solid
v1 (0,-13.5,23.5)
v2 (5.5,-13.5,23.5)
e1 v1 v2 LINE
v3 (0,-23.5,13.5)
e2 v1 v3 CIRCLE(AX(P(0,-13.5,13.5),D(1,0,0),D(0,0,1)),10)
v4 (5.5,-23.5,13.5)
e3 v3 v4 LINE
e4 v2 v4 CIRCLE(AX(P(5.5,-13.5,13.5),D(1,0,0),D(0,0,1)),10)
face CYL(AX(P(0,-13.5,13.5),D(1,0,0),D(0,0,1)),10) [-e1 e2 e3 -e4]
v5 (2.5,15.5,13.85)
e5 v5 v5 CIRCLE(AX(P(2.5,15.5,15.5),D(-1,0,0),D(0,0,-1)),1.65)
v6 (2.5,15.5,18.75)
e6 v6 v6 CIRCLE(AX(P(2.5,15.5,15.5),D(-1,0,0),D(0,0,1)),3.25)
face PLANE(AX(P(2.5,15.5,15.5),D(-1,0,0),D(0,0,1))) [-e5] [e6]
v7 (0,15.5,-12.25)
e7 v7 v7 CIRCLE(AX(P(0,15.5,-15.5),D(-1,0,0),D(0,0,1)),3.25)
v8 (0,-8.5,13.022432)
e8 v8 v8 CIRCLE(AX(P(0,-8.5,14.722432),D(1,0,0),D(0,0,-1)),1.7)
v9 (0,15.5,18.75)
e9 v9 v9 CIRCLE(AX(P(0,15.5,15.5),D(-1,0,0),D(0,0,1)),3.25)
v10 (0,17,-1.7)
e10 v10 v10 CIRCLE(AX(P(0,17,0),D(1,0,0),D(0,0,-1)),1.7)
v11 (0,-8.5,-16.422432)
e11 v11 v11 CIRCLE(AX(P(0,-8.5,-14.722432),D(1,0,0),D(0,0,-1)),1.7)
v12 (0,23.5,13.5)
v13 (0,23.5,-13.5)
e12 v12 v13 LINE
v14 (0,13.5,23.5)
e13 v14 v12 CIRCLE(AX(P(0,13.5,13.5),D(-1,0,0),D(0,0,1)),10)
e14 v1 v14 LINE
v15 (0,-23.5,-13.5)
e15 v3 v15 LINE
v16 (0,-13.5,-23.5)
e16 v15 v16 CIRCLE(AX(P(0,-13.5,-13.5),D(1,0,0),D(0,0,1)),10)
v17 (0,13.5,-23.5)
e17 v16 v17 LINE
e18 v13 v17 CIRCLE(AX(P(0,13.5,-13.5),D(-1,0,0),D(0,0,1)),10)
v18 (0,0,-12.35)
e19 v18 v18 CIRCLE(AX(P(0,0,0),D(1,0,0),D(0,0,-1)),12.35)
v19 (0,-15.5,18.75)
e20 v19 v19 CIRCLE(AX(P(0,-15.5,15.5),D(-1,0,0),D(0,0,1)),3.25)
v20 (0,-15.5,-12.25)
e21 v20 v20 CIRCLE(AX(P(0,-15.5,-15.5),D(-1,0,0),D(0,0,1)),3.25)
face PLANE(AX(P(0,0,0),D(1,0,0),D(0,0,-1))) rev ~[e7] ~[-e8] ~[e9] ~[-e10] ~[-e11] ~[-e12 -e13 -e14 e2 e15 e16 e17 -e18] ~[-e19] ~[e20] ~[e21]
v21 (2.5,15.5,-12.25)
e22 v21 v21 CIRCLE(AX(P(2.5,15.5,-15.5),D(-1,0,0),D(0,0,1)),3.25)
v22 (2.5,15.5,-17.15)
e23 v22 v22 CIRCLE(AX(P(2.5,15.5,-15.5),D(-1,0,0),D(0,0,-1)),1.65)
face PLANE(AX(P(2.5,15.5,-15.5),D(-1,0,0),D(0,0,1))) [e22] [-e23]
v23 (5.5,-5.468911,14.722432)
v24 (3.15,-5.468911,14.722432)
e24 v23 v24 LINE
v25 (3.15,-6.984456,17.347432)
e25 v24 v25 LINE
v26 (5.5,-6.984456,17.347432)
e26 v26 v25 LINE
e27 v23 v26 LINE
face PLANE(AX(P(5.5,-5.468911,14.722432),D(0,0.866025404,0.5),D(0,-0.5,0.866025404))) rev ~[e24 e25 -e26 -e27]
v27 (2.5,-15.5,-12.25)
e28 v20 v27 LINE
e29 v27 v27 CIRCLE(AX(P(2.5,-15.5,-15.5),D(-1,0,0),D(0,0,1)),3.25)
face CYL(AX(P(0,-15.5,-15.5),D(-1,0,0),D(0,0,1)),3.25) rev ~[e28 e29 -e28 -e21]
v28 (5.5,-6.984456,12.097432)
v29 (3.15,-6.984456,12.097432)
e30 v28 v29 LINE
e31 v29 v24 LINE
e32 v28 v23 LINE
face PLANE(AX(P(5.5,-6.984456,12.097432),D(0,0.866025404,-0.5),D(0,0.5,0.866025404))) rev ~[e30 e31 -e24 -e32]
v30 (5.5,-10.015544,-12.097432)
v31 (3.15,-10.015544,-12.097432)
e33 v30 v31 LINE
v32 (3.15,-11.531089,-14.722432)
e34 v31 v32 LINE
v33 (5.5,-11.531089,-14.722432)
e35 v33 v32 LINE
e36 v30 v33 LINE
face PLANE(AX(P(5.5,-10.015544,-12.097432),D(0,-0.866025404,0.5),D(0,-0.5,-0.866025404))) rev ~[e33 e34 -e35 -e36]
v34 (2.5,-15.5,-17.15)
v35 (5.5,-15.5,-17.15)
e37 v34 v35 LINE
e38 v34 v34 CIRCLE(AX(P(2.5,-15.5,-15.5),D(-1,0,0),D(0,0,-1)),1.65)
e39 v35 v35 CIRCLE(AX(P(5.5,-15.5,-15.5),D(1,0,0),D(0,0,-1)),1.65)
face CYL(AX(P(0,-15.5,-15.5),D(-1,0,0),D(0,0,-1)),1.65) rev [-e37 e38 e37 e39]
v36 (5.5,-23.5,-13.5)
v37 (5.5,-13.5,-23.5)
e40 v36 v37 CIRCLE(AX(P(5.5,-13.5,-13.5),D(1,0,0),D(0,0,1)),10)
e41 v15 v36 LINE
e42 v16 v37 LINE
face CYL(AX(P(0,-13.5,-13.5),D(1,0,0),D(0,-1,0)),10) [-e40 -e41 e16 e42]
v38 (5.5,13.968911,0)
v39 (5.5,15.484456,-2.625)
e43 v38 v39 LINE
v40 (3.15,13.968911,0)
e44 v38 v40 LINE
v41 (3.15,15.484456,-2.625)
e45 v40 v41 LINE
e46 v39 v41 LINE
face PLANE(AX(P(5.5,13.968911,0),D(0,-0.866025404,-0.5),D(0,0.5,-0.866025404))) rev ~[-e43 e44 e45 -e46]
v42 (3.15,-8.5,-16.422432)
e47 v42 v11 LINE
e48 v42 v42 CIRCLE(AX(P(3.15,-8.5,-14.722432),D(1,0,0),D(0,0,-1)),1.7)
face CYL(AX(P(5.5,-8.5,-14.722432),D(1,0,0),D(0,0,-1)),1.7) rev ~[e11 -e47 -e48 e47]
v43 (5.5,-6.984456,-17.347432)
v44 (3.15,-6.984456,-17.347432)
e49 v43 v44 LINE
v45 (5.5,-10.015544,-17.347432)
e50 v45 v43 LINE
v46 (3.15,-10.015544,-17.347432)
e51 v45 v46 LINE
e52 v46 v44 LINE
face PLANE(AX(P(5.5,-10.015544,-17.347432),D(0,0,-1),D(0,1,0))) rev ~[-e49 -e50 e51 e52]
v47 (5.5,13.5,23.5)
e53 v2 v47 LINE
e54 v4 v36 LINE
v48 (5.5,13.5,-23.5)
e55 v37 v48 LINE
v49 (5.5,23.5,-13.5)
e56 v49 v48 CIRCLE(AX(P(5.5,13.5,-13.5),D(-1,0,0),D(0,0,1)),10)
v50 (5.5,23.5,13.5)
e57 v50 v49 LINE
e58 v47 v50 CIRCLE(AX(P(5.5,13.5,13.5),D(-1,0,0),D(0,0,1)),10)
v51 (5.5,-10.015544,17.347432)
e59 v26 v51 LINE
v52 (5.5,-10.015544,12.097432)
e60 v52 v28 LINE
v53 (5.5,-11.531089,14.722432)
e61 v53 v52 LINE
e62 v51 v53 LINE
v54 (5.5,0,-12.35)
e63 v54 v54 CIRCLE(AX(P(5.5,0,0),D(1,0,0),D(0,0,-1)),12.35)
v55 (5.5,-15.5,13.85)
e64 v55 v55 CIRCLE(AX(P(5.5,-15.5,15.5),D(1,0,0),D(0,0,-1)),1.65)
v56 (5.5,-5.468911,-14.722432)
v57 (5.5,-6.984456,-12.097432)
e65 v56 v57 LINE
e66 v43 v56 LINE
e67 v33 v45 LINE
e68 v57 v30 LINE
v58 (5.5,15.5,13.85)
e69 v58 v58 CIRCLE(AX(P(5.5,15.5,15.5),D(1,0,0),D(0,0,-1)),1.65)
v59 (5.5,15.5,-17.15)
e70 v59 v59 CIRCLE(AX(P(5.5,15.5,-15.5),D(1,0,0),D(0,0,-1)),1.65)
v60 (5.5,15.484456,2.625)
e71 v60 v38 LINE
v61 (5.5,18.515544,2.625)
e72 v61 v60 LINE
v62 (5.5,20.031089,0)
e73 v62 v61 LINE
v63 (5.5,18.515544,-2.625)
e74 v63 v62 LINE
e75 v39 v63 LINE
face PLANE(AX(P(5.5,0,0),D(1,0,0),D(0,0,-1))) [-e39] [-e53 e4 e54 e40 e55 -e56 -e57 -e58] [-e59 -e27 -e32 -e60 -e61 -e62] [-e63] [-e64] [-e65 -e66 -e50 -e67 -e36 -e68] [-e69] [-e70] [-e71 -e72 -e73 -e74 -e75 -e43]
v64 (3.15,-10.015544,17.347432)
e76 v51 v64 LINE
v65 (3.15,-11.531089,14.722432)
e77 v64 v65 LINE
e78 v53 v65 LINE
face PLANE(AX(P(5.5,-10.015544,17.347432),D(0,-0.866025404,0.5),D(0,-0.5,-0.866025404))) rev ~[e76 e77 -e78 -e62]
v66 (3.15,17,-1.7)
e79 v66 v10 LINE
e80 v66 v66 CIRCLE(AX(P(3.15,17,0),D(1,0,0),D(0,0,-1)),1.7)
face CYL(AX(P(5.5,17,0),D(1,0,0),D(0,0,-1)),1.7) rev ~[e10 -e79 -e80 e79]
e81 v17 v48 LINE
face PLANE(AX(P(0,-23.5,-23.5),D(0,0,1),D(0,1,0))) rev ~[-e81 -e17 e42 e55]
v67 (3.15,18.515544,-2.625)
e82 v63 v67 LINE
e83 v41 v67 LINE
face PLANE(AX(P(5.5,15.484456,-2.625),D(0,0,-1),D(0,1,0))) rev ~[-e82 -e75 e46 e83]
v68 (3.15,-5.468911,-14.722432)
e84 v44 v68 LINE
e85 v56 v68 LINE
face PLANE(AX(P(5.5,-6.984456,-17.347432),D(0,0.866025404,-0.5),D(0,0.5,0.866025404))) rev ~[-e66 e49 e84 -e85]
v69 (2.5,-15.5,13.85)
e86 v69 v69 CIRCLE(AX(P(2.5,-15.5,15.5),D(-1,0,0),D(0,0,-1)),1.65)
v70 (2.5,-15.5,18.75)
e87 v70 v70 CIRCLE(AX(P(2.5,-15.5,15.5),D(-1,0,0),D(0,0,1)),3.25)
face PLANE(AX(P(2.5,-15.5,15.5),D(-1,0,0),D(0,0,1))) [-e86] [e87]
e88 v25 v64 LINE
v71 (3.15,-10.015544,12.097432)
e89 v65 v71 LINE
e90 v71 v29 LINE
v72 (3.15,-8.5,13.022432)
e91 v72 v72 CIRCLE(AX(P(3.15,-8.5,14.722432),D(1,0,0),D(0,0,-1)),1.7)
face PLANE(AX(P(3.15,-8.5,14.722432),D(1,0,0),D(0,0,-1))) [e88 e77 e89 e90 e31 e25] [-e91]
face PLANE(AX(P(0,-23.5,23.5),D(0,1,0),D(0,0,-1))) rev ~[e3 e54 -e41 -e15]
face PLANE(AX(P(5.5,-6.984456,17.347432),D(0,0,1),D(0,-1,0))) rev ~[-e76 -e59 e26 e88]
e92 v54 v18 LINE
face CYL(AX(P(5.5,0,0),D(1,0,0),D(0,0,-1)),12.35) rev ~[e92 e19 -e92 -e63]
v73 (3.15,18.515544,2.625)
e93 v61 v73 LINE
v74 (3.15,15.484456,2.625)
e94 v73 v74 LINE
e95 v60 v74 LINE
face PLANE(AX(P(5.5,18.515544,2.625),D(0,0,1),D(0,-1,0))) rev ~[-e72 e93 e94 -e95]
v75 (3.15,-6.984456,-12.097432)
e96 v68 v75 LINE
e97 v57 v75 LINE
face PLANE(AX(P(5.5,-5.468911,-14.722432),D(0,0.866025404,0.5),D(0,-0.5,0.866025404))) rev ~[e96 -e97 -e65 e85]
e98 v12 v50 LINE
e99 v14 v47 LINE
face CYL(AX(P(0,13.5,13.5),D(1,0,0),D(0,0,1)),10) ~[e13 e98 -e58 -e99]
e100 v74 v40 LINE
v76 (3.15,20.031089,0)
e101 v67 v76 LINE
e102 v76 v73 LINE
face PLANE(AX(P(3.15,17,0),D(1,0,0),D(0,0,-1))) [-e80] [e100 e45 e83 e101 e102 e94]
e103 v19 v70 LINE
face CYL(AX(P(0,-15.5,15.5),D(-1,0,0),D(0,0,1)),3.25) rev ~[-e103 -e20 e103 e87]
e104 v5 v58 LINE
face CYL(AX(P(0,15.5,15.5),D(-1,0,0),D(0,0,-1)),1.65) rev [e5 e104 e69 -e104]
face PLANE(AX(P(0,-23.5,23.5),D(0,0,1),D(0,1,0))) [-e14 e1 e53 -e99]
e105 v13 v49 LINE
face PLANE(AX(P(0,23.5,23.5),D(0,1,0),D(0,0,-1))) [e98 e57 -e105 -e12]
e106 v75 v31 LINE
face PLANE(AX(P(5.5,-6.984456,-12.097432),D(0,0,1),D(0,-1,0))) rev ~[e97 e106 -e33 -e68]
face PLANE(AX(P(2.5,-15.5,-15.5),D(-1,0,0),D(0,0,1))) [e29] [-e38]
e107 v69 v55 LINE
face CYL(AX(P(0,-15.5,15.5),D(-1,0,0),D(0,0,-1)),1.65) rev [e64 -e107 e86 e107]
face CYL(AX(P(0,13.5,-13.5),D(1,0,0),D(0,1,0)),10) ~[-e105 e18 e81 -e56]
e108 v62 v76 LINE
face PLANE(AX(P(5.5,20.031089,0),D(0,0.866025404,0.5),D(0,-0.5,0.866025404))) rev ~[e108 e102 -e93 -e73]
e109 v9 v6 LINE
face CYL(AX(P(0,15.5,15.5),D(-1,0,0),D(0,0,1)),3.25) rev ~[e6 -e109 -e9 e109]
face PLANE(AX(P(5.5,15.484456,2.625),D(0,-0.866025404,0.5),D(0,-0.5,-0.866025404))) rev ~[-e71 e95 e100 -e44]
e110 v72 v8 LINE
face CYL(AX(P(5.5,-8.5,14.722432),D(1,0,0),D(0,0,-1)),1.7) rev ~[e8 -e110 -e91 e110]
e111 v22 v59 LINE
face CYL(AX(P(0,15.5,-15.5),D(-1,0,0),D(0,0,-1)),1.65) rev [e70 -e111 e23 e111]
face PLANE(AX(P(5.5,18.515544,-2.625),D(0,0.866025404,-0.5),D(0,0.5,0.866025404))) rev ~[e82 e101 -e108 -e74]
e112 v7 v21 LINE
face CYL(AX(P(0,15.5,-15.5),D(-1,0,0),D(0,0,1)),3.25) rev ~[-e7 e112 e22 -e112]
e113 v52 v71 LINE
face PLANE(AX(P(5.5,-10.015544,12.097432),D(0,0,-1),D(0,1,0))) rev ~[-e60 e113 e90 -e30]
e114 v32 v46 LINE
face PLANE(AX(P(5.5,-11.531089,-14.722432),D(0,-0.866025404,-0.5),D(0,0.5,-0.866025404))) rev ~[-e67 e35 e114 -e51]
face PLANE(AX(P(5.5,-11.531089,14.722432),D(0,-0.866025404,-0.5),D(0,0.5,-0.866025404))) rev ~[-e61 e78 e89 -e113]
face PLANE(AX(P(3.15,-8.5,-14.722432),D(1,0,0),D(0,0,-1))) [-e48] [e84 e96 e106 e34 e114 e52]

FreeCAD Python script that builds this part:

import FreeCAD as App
import Part
import Sketcher
Q = App.Units.Quantity


def edges_at(feature, points):
    """Names of the edges that pass closest to the given points."""
    edges = feature.Shape.Edges
    near = lambda p: min(range(len(edges)), key=lambda i: edges[i].distToShape(Part.Vertex(*p))[0])
    return sorted({f"Edge{near(p) + 1}" for p in points})


def add_polygon(sketch, points):
    """Adds a closed chain of lines whose ends are joined by coincident constraints."""
    first, n = sketch.GeometryCount, len(points)
    for a, b in zip(points, points[1:] + points[:1]):
        sketch.addGeometry(Part.LineSegment(App.Vector(*a, 0), App.Vector(*b, 0)), False)
    for i in range(n):
        sketch.addConstraint(Sketcher.Constraint("Coincident", first + i, 2, first + (i + 1) % n, 1))

doc = App.newDocument("Part")
body = doc.addObject("PartDesign::Body", "Body")

sketch1 = body.newObject("Sketcher::SketchObject", "Sketch")
sketch1.AttachmentSupport = (doc.getObject("YZ_Plane"), [""])
sketch1.MapMode = "FlatFace"
add_polygon(sketch1, [(23.5, 23.5), (-23.5, 23.5), (-23.5, -23.5), (23.5, -23.5)])
sketch1.addGeometry(Part.Circle(App.Vector(-15.5, 15.5, 0), App.Vector(0, 0, 1), 1.6), False)
sketch1.addGeometry(Part.Circle(App.Vector(-15.5, -15.5, 0), App.Vector(0, 0, 1), 1.6), False)
sketch1.addGeometry(Part.Circle(App.Vector(15.5, 15.5, 0), App.Vector(0, 0, 1), 1.6), False)
sketch1.addGeometry(Part.Circle(App.Vector(15.5, -15.5, 0), App.Vector(0, 0, 1), 1.6), False)
sketch1.addConstraint([
    Sketcher.Constraint("Horizontal", 0),
    Sketcher.Constraint("Vertical", 1),
    Sketcher.Constraint("Horizontal", 2),
    Sketcher.Constraint("Vertical", 3),
    Sketcher.Constraint("Equal", 4, 5),
    Sketcher.Constraint("Equal", 5, 6),
    Sketcher.Constraint("Equal", 6, 7),
    Sketcher.Constraint("Symmetric", 5, 3, 6, 3, -1, 1),
    Sketcher.Constraint("Symmetric", 4, 3, 7, 3, -1, 1),
    Sketcher.Constraint("Symmetric", 0, 2, 2, 2, -1, 1),
    Sketcher.Constraint("Symmetric", 4, 3, 6, 3, -2),
    Sketcher.Constraint("Equal", 2, 1),
    Sketcher.Constraint("Diameter", 4, Q("3.3 mm")),
    Sketcher.Constraint("DistanceX", 0, 2, 0, 1, Q("47 mm")),
    Sketcher.Constraint("DistanceY", 5, 3, 4, 3, Q("31 mm")),
    Sketcher.Constraint("DistanceX", 4, 3, 6, 3, Q("31 mm")),
])
pad1 = body.newObject("PartDesign::Pad", "Pad")
pad1.Profile = sketch1
pad1.Length = 5.5

sketch2 = body.newObject("Sketcher::SketchObject", "Sketch001")
sketch2.AttachmentSupport = (doc.getObject("YZ_Plane"), [""])
sketch2.MapMode = "FlatFace"
sketch2.AttachmentOffset = App.Placement(App.Vector(0, 0, 5.5), App.Rotation())
add_polygon(sketch2, [(14, 0), (15.5, -2.6), (18.5, -2.6), (20, 0), (18.5, 2.6), (15.5, 2.6)])
add_polygon(sketch2, [(-11.5, -14.7), (-10, -17.3), (-7, -17.3), (-5.5, -14.7), (-7, -12.1), (-10, -12.1)])
add_polygon(sketch2, [(-7, 17.3), (-10, 17.3), (-11.5, 14.7), (-10, 12.1), (-7, 12.1), (-5.5, 14.7)])
sketch2.addConstraint([
    Sketcher.Constraint("Horizontal", 1),
    Sketcher.Constraint("Horizontal", 4),
    Sketcher.Constraint("Horizontal", 7),
    Sketcher.Constraint("Horizontal", 10),
    Sketcher.Constraint("Horizontal", 12),
    Sketcher.Constraint("Horizontal", 15),
    Sketcher.Constraint("Symmetric", 1, 2, 3, 2, -1),
    Sketcher.Constraint("Symmetric", 6, 2, 12, 2, -1),
    Sketcher.Constraint("Symmetric", 11, 2, 13, 2, -1),
    Sketcher.Constraint("Symmetric", 10, 2, 14, 2, -1),
    Sketcher.Constraint("Symmetric", 8, 2, 16, 2, -1),
    Sketcher.Constraint("PointOnObject", 2, 2, -1),
    Sketcher.Constraint("PointOnObject", 5, 2, -1),
    Sketcher.Constraint("Parallel", 0, 3),
    Sketcher.Constraint("Parallel", 2, 5),
    Sketcher.Constraint("Parallel", 3, 6),
    Sketcher.Constraint("Parallel", 5, 8),
    Sketcher.Constraint("Parallel", 6, 9),
    Sketcher.Constraint("Parallel", 8, 11),
    Sketcher.Constraint("Parallel", 13, 16),
    Sketcher.Constraint("Parallel", 14, 17),
    Sketcher.Constraint("Horizontal", 8, 2, 11, 2),
    Sketcher.Constraint("Vertical", 7, 2, 9, 2),
    Sketcher.Constraint("Equal", 4, 7),
    Sketcher.Constraint("Equal", 5, 6),
    Sketcher.Constraint("Angle", 0, Q("-60 deg")),
    Sketcher.Constraint("DistanceX", 6, 2, 0, 2, Q("25.5 mm")),
    Sketcher.Constraint("DistanceY", 1, 2, 3, 2, Q("5.25 mm")),
    Sketcher.Constraint("DistanceX", 1, 1, 1, 2, Q("3.031089 mm")),
    Sketcher.Constraint("DistanceX", -1, 1, 2, 2, Q("20.031089 mm")),
    Sketcher.Constraint("DistanceY", 6, 2, -1, 1, Q("17.347432 mm")),
])
pocket1 = body.newObject("PartDesign::Pocket", "Pocket")
pocket1.Profile = sketch2
pocket1.Length = 2.35

sketch3 = body.newObject("Sketcher::SketchObject", "Sketch002")
sketch3.AttachmentSupport = (doc.getObject("YZ_Plane"), [""])
sketch3.MapMode = "FlatFace"
sketch3.AttachmentOffset = App.Placement(App.Vector(0, 0, 5.5), App.Rotation())
sketch3.addGeometry(Part.Circle(App.Vector(0, 0, 0), App.Vector(0, 0, 1), 12), False)
sketch3.addConstraint([
    Sketcher.Constraint("Coincident", 0, 3, -1, 1),
    Sketcher.Constraint("Diameter", 0, Q("24.7 mm")),
])
pocket2 = body.newObject("PartDesign::Pocket", "Pocket001")
pocket2.Profile = sketch3
pocket2.Length = 5.5

sketch4 = body.newObject("Sketcher::SketchObject", "Sketch003")
sketch4.AttachmentSupport = (doc.getObject("YZ_Plane"), [""])
sketch4.MapMode = "FlatFace"
sketch4.AttachmentOffset = App.Placement(App.Vector(0, 0, 5.5), App.Rotation())
sketch4.addGeometry([
    Part.Circle(App.Vector(17, 0, 0), App.Vector(0, 0, 1), 1.7),
    Part.Circle(App.Vector(-8.5, -14.7, 0), App.Vector(0, 0, 1), 1.7),
    Part.Circle(App.Vector(-8.5, 14.7, 0), App.Vector(0, 0, 1), 1.7),
], False)
sketch4.addConstraint([
    Sketcher.Constraint("Equal", 0, 1),
    Sketcher.Constraint("Equal", 1, 2),
    Sketcher.Constraint("Symmetric", 1, 3, 2, 3, -1),
    Sketcher.Constraint("PointOnObject", 0, 3, -1),
    Sketcher.Constraint("Diameter", 0, Q("3.4 mm")),
    Sketcher.Constraint("DistanceX", -1, 1, 0, 3, Q("17 mm")),
    Sketcher.Constraint("DistanceX", 1, 3, -1, 1, Q("8.5 mm")),
    Sketcher.Constraint("DistanceY", 1, 3, -1, 1, Q("14.722432 mm")),
])
pocket3 = body.newObject("PartDesign::Pocket", "Pocket002")
pocket3.Profile = sketch4
pocket3.Length = 5.5

sketch5 = body.newObject("Sketcher::SketchObject", "Sketch004")
sketch5.AttachmentSupport = (doc.getObject("YZ_Plane"), [""])
sketch5.MapMode = "FlatFace"
sketch5.addGeometry([
    Part.Circle(App.Vector(-15.5, -15.5, 0), App.Vector(0, 0, 1), 3.2),
    Part.Circle(App.Vector(15.5, -15.5, 0), App.Vector(0, 0, 1), 3.2),
    Part.Circle(App.Vector(15.5, 15.5, 0), App.Vector(0, 0, 1), 3.2),
    Part.Circle(App.Vector(-15.5, 15.5, 0), App.Vector(0, 0, 1), 3.2),
], False)
sketch5.addConstraint([
    Sketcher.Constraint("Equal", 0, 1),
    Sketcher.Constraint("Equal", 1, 2),
    Sketcher.Constraint("Equal", 2, 3),
    Sketcher.Constraint("Symmetric", 0, 3, 2, 3, -1, 1),
    Sketcher.Constraint("Symmetric", 1, 3, 3, 3, -1, 1),
    Sketcher.Constraint("Symmetric", 0, 3, 1, 3, -2),
    Sketcher.Constraint("Diameter", 0, Q("6.5 mm")),
    Sketcher.Constraint("DistanceX", 0, 3, 1, 3, Q("31 mm")),
    Sketcher.Constraint("DistanceY", 1, 3, 2, 3, Q("31 mm")),
])
pocket4 = body.newObject("PartDesign::Pocket", "Pocket003")
pocket4.Profile = sketch5
pocket4.Length = 2.5
pocket4.Reversed = True
doc.recompute()

fillet = body.newObject("PartDesign::Fillet", "Fillet")
fillet.Base = (pocket4, edges_at(pocket4, [
    (2.75, -23.5, 23.5),
    (2.75, 23.5, 23.5),
    (2.75, 23.5, -23.5),
    (2.75, -23.5, -23.5),
]))
fillet.Radius = 10

doc.recompute()
